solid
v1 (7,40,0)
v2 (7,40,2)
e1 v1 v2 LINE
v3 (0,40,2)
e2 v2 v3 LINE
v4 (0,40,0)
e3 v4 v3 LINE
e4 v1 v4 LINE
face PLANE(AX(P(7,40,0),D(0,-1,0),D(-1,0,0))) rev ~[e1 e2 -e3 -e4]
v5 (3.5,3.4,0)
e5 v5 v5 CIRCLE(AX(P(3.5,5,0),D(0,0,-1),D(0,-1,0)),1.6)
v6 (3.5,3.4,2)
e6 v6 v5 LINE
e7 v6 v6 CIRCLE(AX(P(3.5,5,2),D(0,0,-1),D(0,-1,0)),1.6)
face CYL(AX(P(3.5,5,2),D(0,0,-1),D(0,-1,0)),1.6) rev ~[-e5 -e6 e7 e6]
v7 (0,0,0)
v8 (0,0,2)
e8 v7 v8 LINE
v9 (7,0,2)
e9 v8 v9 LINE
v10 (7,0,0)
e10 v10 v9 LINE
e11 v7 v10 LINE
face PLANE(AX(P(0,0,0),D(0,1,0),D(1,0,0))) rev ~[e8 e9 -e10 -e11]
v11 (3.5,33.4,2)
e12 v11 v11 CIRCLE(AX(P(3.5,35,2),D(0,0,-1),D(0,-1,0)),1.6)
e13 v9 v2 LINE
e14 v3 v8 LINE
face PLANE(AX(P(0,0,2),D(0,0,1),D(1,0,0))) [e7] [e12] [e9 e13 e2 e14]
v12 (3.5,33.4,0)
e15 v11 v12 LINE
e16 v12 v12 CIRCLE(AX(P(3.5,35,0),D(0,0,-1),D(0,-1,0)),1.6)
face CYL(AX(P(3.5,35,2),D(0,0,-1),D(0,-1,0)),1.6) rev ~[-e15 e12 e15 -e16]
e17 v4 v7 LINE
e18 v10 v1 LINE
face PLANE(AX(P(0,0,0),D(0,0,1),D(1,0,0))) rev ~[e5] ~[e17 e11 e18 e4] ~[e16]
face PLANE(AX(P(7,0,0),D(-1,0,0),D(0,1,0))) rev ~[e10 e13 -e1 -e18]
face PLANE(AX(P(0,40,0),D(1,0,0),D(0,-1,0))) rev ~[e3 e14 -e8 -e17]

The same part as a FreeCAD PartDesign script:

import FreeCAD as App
import Part
import Sketcher


def add_polygon(sketch, points):
    """Adds a closed chain of lines whose ends are joined by coincident constraints."""
    first, n = sketch.GeometryCount, len(points)
    for a, b in zip(points, points[1:] + points[:1]):
        sketch.addGeometry(Part.LineSegment(App.Vector(*a, 0), App.Vector(*b, 0)), False)
    for i in range(n):
        sketch.addConstraint(Sketcher.Constraint("Coincident", first + i, 2, first + (i + 1) % n, 1))

doc = App.newDocument("Part")
params = doc.addObject("Spreadsheet::Sheet", "Params")
for row, (alias, value) in enumerate([
    ("sketch1_width", "7 mm"),
    ("sketch1_height", "40 mm"),
    ("pad1_length", "2 mm"),
    ("sketch2_diameter", "3.2 mm"),
    ("hole_diameter", "3.2 mm"),
], start=1):
    params.set(f"A{row}", alias)
    params.set(f"B{row}", "=" + value)
    params.setAlias(f"B{row}", alias)

body = doc.addObject("PartDesign::Body", "Body")

# Sketch on XY plane
sketch1 = doc.addObject("Sketcher::SketchObject", "Sketch")
body.addObject(sketch1)
sketch1.AttachmentSupport = (doc.XY_Plane, [""])
sketch1.MapMode = "FlatFace"
add_polygon(sketch1, [(0, 40), (0, 0), (7, 0), (7, 40)])  # lines 0-3
sketch1.addConstraint([
    Sketcher.Constraint("Vertical", 0),
    Sketcher.Constraint("Horizontal", 1),
    Sketcher.Constraint("Vertical", 2),
    Sketcher.Constraint("Horizontal", 3),
    Sketcher.Constraint("Coincident", 0, 2, -1, 1),
    Sketcher.Constraint("DistanceX", 1, 1, 1, 2, 7.0),
    Sketcher.Constraint("DistanceY", 0, 2, 0, 1, 40.0),
])
sketch1.setExpression("Constraints[9]", "Params.sketch1_width")
sketch1.setExpression("Constraints[10]", "Params.sketch1_height")
pad1 = doc.addObject("PartDesign::Pad", "Pad")
body.addObject(pad1)
pad1.Profile = sketch1
pad1.setExpression("Length", "Params.pad1_length")

# Sketch on XY plane
sketch2 = doc.addObject("Sketcher::SketchObject", "Sketch001")
body.addObject(sketch2)
sketch2.AttachmentSupport = (doc.XY_Plane, [""])
sketch2.MapMode = "FlatFace"
sketch2.AttachmentOffset = App.Placement(App.Vector(0, 0, 2), App.Rotation())
sketch2.addGeometry([
    Part.Circle(App.Vector(3.5, 35, 0), App.Vector(0, 0, 1), 1.6),
    Part.Circle(App.Vector(3.5, 5, 0), App.Vector(0, 0, 1), 1.6),
], False)
sketch2.addConstraint([
    Sketcher.Constraint("Equal", 0, 1),
    Sketcher.Constraint("Vertical", 0, 3, 1, 3),
    Sketcher.Constraint("Diameter", 0, 3.2),
    Sketcher.Constraint("DistanceY", -1, 1, 0, 3, 35.0),
    Sketcher.Constraint("DistanceY", -1, 1, 1, 3, 5.0),
    Sketcher.Constraint("DistanceX", -1, 1, 0, 3, 3.5),
])
sketch2.setExpression("Constraints[2]", "Params.sketch2_diameter")
doc.recompute()
hole = doc.addObject("PartDesign::Hole", "Hole")
body.addObject(hole)
hole.Profile = sketch2
hole.ThreadType = "None"
hole.setExpression("Diameter", "Params.hole_diameter")
hole.DepthType = "ThroughAll"

doc.recompute()
